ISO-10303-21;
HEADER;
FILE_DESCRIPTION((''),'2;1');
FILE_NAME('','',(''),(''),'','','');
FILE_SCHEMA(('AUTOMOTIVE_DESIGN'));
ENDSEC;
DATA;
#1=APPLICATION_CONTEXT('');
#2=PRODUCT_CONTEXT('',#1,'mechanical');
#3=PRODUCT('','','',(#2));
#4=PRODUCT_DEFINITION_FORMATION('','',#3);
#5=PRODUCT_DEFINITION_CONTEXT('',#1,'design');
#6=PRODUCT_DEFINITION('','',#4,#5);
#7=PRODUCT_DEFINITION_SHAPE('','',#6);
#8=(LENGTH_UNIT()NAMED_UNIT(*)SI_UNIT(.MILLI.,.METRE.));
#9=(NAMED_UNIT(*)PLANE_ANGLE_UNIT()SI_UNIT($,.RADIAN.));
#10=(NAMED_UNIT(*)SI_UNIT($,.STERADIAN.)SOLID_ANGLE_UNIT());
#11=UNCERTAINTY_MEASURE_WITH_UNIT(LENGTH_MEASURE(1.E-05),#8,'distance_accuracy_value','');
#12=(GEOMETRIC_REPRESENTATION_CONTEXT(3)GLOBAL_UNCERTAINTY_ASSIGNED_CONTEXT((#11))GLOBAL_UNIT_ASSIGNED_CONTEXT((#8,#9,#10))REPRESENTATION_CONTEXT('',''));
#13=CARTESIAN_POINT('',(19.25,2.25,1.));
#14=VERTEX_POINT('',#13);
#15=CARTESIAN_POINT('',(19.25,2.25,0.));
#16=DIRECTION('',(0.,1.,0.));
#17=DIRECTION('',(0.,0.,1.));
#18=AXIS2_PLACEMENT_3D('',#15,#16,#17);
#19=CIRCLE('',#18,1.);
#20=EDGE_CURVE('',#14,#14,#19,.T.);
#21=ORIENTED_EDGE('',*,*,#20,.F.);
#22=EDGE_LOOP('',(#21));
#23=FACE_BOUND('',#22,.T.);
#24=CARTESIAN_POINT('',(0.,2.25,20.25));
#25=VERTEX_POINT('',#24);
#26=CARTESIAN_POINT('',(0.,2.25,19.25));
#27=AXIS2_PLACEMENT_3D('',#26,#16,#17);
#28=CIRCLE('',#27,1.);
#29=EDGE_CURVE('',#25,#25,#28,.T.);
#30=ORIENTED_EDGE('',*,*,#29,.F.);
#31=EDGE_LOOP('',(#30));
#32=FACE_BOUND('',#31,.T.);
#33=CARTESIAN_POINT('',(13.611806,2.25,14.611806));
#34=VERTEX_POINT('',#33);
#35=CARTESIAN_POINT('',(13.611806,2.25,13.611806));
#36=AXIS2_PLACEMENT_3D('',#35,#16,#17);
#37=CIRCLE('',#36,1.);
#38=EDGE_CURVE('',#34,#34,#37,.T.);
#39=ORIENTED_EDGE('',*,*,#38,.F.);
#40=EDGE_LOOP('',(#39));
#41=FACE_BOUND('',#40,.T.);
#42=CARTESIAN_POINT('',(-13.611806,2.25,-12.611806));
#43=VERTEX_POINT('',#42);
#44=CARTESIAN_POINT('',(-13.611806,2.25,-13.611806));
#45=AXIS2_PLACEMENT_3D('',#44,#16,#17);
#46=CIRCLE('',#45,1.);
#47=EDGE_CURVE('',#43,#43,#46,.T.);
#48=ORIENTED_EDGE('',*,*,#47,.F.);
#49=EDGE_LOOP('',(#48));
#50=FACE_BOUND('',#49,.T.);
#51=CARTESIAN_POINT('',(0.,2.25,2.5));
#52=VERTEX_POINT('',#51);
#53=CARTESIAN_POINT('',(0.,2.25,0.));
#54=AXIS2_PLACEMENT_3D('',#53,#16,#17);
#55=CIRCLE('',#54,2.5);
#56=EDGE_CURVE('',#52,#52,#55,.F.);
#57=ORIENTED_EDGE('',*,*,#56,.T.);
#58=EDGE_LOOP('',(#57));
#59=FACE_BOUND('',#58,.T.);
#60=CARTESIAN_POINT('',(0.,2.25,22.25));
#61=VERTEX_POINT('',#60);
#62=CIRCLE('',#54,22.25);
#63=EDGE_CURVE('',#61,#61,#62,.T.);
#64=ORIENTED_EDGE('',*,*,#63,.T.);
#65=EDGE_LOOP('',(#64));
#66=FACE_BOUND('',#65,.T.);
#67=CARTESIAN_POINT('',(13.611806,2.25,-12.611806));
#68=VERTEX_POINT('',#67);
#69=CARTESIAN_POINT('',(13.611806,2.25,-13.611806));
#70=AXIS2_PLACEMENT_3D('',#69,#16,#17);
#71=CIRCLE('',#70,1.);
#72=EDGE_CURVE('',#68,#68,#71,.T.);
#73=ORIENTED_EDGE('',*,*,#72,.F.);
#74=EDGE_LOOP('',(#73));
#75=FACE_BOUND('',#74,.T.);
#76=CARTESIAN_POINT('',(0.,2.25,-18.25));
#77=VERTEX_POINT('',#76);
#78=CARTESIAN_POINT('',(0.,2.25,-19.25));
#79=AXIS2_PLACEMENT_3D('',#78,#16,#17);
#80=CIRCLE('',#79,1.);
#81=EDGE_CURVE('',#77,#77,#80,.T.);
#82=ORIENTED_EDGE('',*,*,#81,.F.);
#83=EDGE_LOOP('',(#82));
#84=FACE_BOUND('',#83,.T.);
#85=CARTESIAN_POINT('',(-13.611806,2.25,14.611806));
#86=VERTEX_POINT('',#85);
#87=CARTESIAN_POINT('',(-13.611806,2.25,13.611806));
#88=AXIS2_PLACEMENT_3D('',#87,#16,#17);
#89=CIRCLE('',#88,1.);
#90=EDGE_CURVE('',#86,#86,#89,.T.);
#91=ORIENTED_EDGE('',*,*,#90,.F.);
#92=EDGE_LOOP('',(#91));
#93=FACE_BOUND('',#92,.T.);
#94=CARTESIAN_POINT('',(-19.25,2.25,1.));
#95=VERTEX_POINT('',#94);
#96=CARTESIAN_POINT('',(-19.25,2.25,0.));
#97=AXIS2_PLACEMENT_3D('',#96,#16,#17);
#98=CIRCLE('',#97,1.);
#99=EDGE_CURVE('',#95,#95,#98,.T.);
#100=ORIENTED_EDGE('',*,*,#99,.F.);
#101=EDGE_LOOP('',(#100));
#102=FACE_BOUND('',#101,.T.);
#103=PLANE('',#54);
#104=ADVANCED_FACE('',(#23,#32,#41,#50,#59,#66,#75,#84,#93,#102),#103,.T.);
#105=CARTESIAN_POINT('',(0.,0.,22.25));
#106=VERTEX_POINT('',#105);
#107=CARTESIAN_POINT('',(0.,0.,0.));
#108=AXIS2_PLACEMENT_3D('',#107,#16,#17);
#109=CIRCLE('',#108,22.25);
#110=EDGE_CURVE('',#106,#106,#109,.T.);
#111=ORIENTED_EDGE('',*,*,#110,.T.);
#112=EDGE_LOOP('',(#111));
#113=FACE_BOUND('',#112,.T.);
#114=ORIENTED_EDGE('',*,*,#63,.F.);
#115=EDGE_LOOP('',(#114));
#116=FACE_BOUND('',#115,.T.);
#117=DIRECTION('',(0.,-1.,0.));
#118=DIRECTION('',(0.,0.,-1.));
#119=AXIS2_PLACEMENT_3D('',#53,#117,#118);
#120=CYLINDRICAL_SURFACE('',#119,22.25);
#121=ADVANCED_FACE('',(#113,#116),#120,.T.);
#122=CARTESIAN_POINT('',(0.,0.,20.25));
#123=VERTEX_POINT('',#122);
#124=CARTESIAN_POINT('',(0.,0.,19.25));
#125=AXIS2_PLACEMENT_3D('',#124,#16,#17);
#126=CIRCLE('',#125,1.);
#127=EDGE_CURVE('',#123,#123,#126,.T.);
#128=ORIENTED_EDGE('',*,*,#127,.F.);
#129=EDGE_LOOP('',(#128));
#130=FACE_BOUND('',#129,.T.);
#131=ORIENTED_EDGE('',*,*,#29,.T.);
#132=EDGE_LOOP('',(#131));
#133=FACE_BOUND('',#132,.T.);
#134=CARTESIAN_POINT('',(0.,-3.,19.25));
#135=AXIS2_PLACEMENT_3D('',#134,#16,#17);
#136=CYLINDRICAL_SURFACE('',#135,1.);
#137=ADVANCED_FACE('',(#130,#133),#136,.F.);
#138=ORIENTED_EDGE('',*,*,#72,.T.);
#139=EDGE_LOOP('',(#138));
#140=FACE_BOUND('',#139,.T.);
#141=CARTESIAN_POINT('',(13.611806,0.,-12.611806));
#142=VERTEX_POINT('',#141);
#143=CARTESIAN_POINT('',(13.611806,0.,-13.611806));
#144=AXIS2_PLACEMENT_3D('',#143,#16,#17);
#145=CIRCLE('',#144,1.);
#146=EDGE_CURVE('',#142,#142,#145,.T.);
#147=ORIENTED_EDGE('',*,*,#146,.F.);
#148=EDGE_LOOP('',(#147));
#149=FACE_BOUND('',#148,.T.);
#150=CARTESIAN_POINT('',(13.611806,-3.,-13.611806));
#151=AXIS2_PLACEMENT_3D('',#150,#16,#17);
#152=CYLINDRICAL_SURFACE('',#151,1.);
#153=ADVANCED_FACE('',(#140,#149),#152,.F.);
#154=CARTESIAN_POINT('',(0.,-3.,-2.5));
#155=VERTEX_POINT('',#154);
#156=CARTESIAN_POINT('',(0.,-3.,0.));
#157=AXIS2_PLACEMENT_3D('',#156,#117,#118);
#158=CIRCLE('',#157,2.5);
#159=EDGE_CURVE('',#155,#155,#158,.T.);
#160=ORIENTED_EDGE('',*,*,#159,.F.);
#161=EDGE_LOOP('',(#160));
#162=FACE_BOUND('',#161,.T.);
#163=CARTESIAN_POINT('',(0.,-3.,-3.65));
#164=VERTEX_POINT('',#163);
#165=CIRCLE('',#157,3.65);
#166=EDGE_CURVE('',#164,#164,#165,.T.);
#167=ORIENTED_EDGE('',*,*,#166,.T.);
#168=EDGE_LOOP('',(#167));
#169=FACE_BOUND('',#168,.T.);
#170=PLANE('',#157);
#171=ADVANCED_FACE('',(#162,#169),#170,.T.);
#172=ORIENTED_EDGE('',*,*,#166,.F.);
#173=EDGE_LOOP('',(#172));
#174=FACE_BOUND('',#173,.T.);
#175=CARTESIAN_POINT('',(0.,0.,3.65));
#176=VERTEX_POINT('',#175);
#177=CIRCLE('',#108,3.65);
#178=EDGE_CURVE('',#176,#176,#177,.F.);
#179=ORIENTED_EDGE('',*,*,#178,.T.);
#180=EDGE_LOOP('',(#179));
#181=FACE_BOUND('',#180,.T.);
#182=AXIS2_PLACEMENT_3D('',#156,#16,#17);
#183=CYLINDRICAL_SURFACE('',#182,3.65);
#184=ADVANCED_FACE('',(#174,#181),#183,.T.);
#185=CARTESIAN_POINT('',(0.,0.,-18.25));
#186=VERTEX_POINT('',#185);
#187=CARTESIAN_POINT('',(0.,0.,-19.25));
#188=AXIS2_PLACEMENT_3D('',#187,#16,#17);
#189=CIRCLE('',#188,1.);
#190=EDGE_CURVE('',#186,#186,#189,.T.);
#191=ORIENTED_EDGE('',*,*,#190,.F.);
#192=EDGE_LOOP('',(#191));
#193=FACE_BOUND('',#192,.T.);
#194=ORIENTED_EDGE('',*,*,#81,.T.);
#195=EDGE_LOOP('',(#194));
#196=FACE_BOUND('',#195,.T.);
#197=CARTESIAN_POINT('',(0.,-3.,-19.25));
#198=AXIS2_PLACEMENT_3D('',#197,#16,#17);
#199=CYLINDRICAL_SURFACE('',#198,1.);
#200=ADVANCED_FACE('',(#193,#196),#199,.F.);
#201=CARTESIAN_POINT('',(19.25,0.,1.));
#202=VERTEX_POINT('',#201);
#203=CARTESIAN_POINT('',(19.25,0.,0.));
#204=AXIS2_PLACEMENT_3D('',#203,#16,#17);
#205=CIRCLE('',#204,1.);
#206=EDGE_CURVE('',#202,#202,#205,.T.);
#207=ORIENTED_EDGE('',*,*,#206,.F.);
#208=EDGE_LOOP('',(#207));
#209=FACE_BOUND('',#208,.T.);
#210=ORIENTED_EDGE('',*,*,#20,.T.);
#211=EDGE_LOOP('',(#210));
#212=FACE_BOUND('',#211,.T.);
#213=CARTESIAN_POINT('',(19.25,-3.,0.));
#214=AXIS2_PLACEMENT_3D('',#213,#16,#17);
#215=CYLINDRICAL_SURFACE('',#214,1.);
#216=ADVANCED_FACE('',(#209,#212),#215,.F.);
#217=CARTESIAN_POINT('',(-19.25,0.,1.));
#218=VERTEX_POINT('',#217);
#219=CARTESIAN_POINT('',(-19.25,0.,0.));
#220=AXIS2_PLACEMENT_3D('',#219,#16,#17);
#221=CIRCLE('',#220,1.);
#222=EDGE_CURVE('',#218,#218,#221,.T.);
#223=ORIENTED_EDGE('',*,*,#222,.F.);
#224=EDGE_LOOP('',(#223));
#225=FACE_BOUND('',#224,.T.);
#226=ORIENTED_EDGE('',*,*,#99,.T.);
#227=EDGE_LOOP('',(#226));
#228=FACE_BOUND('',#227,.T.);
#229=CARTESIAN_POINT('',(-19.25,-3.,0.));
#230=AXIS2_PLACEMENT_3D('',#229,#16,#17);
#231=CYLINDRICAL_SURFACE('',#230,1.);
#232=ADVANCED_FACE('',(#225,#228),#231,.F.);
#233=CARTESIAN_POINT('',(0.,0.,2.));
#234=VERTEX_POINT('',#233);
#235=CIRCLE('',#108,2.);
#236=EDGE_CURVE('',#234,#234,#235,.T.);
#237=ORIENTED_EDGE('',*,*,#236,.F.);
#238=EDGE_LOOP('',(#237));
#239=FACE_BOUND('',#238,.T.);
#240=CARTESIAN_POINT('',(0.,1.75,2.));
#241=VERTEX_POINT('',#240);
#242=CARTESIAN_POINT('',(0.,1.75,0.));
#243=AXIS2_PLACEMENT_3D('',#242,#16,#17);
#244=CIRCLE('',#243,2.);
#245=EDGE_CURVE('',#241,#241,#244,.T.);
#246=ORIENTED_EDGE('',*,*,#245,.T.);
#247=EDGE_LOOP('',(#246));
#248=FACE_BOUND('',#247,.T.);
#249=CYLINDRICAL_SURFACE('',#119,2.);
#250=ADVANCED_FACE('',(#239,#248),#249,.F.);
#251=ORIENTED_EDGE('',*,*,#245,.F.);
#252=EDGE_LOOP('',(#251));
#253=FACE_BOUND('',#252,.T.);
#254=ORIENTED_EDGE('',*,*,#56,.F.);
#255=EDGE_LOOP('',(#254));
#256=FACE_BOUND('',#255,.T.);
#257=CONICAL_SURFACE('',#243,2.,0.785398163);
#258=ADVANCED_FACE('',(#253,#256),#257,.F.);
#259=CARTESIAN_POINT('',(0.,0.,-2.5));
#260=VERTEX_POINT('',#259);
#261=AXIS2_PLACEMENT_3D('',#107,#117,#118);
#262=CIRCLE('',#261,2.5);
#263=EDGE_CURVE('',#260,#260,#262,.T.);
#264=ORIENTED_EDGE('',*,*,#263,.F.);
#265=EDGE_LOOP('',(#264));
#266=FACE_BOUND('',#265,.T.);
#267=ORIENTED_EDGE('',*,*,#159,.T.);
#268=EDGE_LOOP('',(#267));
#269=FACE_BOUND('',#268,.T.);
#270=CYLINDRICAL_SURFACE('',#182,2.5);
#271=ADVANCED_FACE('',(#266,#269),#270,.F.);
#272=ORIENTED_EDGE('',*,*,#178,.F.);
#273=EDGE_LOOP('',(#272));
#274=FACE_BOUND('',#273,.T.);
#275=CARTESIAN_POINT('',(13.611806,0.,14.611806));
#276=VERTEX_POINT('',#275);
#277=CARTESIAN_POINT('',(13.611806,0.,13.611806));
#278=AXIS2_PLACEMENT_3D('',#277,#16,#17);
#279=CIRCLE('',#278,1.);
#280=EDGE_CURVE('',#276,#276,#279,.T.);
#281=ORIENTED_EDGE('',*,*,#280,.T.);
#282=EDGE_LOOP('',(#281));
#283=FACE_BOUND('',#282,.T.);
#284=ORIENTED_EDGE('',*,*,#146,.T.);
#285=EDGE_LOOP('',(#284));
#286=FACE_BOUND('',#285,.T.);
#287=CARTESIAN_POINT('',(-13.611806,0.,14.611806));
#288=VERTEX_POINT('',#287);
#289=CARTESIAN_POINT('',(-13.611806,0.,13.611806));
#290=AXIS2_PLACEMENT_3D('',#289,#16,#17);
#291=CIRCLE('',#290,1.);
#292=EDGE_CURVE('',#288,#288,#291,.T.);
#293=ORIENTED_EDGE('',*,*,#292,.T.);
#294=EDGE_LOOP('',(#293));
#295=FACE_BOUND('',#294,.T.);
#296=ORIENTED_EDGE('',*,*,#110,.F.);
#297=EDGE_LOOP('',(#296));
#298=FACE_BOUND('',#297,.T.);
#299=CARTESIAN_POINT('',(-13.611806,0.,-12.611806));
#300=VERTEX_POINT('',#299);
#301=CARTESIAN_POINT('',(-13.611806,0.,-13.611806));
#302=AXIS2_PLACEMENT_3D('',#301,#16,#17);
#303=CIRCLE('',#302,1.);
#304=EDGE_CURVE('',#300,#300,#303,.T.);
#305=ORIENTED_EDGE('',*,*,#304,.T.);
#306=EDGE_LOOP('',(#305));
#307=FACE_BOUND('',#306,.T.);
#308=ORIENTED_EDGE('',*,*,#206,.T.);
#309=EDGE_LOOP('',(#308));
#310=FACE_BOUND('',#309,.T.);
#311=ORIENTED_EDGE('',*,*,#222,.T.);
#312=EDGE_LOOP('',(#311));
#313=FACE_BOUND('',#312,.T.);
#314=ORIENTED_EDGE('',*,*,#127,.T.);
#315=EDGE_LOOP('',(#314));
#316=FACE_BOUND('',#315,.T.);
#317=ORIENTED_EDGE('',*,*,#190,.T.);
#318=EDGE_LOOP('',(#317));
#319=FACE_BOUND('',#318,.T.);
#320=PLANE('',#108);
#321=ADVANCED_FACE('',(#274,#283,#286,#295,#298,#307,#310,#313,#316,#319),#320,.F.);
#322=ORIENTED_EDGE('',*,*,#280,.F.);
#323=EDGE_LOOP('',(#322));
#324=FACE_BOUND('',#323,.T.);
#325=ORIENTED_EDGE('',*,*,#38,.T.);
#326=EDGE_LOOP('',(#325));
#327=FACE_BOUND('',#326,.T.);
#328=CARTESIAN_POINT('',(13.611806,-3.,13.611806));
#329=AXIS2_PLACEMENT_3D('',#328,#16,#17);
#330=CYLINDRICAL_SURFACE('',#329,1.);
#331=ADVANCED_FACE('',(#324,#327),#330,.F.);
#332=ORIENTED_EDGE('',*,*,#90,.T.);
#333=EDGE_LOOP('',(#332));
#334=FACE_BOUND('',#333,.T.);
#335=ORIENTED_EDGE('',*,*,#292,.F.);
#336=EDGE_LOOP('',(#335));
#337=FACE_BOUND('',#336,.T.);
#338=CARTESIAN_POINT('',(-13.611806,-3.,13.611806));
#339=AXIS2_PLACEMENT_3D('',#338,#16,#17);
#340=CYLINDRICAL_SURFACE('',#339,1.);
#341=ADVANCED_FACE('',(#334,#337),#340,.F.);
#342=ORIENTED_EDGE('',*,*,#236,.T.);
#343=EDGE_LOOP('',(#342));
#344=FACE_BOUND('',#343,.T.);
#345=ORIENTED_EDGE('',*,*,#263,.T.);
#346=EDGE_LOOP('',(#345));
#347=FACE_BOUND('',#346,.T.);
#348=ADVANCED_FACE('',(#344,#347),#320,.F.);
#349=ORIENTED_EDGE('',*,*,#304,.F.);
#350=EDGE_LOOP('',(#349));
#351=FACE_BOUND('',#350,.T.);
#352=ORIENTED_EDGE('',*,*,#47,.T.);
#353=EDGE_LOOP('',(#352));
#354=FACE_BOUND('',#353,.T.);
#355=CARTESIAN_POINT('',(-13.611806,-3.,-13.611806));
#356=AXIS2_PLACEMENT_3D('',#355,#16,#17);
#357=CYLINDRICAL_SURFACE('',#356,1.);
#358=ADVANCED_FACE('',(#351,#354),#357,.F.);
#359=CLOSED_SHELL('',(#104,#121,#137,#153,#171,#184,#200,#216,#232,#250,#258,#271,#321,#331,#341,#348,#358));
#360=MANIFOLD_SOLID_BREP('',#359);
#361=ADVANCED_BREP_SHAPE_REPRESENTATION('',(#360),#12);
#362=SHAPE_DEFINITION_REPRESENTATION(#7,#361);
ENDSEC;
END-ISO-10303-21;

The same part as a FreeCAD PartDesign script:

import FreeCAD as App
import Part
import Sketcher


def edges_at(feature, points):
    """Names of the edges that pass closest to the given points."""
    edges = feature.Shape.Edges
    near = lambda p: min(range(len(edges)), key=lambda i: edges[i].distToShape(Part.Vertex(*p))[0])
    return sorted({f"Edge{near(p) + 1}" for p in points})

doc = App.newDocument("Part")
body = doc.addObject("PartDesign::Body", "Body")

sketch1 = body.newObject("Sketcher::SketchObject", "Sketch")
sketch1.AttachmentSupport = (doc.getObject("XZ_Plane"), [""])
sketch1.MapMode = "FlatFace"
sketch1.addGeometry([
    Part.Circle(App.Vector(0, 0, 0), App.Vector(0, 0, 1), 22.2),
    Part.Circle(App.Vector(0, 0, 0), App.Vector(0, 0, 1), 2),
], False)
sketch1.addConstraint([
    Sketcher.Constraint("Coincident", 0, 3, -1, 1),
    Sketcher.Constraint("Coincident", 1, 3, -1, 1),
    Sketcher.Constraint("Diameter", 1, 4.0),
    Sketcher.Constraint("Diameter", 0, 44.5),
])
pad1 = body.newObject("PartDesign::Pad", "Pad")
pad1.Profile = sketch1
pad1.Length = 2.25
pad1.Reversed = True

sketch2 = body.newObject("Sketcher::SketchObject", "Sketch001")
sketch2.AttachmentSupport = (doc.getObject("XZ_Plane"), [""])
sketch2.MapMode = "FlatFace"
sketch2.addGeometry([
    Part.Circle(App.Vector(0, 0, 0), App.Vector(0, 0, 1), 3.6),
    Part.Circle(App.Vector(0, 0, 0), App.Vector(0, 0, 1), 2.5),
], False)
sketch2.addConstraint([
    Sketcher.Constraint("Coincident", 0, 3, -1, 1),
    Sketcher.Constraint("Coincident", 1, 3, -1, 1),
    Sketcher.Constraint("Diameter", 1, 5.0),
    Sketcher.Constraint("Diameter", 0, 7.3),
])
pad2 = body.newObject("PartDesign::Pad", "Pad001")
pad2.Profile = sketch2
pad2.Length = 3
doc.recompute()

chamfer = body.newObject("PartDesign::Chamfer", "Chamfer")
chamfer.Base = (pad2, edges_at(pad2, [(0, 2.25, -2)]))
chamfer.Size = 0.5

sketch3 = body.newObject("Sketcher::SketchObject", "Sketch002")
sketch3.AttachmentSupport = (doc.getObject("XZ_Plane"), [""])
sketch3.MapMode = "FlatFace"
sketch3.AttachmentOffset = App.Placement(App.Vector(0, 0, -2.25), App.Rotation())
sketch3.addGeometry([
    Part.Circle(App.Vector(0, -19.2, 0), App.Vector(0, 0, 1), 1),
    Part.Circle(App.Vector(13.6, -13.6, 0), App.Vector(0, 0, 1), 1),
    Part.Circle(App.Vector(19.2, 0, 0), App.Vector(0, 0, 1), 1),
    Part.Circle(App.Vector(13.6, 13.6, 0), App.Vector(0, 0, 1), 1),
    Part.Circle(App.Vector(0, 19.2, 0), App.Vector(0, 0, 1), 1),
    Part.Circle(App.Vector(-13.6, 13.6, 0), App.Vector(0, 0, 1), 1),
    Part.Circle(App.Vector(-19.2, 0, 0), App.Vector(0, 0, 1), 1),
    Part.Circle(App.Vector(-13.6, -13.6, 0), App.Vector(0, 0, 1), 1),
], False)
sketch3.addConstraint([
    Sketcher.Constraint("Equal", 0, 1),
    Sketcher.Constraint("Equal", 1, 2),
    Sketcher.Constraint("Equal", 2, 3),
    Sketcher.Constraint("Equal", 3, 4),
    Sketcher.Constraint("Equal", 4, 5),
    Sketcher.Constraint("Equal", 5, 6),
    Sketcher.Constraint("Equal", 6, 7),
    Sketcher.Constraint("Symmetric", 0, 3, 4, 3, -1, 1),
    Sketcher.Constraint("Symmetric", 1, 3, 5, 3, -1, 1),
    Sketcher.Constraint("Symmetric", 2, 3, 6, 3, -1, 1),
    Sketcher.Constraint("Symmetric", 3, 3, 7, 3, -1, 1),
    Sketcher.Constraint("Symmetric", 3, 3, 5, 3, -2),
    Sketcher.Constraint("PointOnObject", 0, 3, -2),
    Sketcher.Constraint("PointOnObject", 2, 3, -1),
    Sketcher.Constraint("Diameter", 0, 2.0),
    Sketcher.Constraint("DistanceY", 0, 3, 4, 3, 38.5),
    Sketcher.Constraint("DistanceX", -1, 1, 2, 3, 19.25),
    Sketcher.Constraint("DistanceY", 1, 3, 3, 3, 27.223611),
    Sketcher.Constraint("DistanceX", 5, 3, 3, 3, 27.223611),
])
pocket1 = body.newObject("PartDesign::Pocket", "Pocket")
pocket1.Profile = sketch3
pocket1.Type = "ThroughAll"
pocket1.Reversed = True

doc.recompute()
